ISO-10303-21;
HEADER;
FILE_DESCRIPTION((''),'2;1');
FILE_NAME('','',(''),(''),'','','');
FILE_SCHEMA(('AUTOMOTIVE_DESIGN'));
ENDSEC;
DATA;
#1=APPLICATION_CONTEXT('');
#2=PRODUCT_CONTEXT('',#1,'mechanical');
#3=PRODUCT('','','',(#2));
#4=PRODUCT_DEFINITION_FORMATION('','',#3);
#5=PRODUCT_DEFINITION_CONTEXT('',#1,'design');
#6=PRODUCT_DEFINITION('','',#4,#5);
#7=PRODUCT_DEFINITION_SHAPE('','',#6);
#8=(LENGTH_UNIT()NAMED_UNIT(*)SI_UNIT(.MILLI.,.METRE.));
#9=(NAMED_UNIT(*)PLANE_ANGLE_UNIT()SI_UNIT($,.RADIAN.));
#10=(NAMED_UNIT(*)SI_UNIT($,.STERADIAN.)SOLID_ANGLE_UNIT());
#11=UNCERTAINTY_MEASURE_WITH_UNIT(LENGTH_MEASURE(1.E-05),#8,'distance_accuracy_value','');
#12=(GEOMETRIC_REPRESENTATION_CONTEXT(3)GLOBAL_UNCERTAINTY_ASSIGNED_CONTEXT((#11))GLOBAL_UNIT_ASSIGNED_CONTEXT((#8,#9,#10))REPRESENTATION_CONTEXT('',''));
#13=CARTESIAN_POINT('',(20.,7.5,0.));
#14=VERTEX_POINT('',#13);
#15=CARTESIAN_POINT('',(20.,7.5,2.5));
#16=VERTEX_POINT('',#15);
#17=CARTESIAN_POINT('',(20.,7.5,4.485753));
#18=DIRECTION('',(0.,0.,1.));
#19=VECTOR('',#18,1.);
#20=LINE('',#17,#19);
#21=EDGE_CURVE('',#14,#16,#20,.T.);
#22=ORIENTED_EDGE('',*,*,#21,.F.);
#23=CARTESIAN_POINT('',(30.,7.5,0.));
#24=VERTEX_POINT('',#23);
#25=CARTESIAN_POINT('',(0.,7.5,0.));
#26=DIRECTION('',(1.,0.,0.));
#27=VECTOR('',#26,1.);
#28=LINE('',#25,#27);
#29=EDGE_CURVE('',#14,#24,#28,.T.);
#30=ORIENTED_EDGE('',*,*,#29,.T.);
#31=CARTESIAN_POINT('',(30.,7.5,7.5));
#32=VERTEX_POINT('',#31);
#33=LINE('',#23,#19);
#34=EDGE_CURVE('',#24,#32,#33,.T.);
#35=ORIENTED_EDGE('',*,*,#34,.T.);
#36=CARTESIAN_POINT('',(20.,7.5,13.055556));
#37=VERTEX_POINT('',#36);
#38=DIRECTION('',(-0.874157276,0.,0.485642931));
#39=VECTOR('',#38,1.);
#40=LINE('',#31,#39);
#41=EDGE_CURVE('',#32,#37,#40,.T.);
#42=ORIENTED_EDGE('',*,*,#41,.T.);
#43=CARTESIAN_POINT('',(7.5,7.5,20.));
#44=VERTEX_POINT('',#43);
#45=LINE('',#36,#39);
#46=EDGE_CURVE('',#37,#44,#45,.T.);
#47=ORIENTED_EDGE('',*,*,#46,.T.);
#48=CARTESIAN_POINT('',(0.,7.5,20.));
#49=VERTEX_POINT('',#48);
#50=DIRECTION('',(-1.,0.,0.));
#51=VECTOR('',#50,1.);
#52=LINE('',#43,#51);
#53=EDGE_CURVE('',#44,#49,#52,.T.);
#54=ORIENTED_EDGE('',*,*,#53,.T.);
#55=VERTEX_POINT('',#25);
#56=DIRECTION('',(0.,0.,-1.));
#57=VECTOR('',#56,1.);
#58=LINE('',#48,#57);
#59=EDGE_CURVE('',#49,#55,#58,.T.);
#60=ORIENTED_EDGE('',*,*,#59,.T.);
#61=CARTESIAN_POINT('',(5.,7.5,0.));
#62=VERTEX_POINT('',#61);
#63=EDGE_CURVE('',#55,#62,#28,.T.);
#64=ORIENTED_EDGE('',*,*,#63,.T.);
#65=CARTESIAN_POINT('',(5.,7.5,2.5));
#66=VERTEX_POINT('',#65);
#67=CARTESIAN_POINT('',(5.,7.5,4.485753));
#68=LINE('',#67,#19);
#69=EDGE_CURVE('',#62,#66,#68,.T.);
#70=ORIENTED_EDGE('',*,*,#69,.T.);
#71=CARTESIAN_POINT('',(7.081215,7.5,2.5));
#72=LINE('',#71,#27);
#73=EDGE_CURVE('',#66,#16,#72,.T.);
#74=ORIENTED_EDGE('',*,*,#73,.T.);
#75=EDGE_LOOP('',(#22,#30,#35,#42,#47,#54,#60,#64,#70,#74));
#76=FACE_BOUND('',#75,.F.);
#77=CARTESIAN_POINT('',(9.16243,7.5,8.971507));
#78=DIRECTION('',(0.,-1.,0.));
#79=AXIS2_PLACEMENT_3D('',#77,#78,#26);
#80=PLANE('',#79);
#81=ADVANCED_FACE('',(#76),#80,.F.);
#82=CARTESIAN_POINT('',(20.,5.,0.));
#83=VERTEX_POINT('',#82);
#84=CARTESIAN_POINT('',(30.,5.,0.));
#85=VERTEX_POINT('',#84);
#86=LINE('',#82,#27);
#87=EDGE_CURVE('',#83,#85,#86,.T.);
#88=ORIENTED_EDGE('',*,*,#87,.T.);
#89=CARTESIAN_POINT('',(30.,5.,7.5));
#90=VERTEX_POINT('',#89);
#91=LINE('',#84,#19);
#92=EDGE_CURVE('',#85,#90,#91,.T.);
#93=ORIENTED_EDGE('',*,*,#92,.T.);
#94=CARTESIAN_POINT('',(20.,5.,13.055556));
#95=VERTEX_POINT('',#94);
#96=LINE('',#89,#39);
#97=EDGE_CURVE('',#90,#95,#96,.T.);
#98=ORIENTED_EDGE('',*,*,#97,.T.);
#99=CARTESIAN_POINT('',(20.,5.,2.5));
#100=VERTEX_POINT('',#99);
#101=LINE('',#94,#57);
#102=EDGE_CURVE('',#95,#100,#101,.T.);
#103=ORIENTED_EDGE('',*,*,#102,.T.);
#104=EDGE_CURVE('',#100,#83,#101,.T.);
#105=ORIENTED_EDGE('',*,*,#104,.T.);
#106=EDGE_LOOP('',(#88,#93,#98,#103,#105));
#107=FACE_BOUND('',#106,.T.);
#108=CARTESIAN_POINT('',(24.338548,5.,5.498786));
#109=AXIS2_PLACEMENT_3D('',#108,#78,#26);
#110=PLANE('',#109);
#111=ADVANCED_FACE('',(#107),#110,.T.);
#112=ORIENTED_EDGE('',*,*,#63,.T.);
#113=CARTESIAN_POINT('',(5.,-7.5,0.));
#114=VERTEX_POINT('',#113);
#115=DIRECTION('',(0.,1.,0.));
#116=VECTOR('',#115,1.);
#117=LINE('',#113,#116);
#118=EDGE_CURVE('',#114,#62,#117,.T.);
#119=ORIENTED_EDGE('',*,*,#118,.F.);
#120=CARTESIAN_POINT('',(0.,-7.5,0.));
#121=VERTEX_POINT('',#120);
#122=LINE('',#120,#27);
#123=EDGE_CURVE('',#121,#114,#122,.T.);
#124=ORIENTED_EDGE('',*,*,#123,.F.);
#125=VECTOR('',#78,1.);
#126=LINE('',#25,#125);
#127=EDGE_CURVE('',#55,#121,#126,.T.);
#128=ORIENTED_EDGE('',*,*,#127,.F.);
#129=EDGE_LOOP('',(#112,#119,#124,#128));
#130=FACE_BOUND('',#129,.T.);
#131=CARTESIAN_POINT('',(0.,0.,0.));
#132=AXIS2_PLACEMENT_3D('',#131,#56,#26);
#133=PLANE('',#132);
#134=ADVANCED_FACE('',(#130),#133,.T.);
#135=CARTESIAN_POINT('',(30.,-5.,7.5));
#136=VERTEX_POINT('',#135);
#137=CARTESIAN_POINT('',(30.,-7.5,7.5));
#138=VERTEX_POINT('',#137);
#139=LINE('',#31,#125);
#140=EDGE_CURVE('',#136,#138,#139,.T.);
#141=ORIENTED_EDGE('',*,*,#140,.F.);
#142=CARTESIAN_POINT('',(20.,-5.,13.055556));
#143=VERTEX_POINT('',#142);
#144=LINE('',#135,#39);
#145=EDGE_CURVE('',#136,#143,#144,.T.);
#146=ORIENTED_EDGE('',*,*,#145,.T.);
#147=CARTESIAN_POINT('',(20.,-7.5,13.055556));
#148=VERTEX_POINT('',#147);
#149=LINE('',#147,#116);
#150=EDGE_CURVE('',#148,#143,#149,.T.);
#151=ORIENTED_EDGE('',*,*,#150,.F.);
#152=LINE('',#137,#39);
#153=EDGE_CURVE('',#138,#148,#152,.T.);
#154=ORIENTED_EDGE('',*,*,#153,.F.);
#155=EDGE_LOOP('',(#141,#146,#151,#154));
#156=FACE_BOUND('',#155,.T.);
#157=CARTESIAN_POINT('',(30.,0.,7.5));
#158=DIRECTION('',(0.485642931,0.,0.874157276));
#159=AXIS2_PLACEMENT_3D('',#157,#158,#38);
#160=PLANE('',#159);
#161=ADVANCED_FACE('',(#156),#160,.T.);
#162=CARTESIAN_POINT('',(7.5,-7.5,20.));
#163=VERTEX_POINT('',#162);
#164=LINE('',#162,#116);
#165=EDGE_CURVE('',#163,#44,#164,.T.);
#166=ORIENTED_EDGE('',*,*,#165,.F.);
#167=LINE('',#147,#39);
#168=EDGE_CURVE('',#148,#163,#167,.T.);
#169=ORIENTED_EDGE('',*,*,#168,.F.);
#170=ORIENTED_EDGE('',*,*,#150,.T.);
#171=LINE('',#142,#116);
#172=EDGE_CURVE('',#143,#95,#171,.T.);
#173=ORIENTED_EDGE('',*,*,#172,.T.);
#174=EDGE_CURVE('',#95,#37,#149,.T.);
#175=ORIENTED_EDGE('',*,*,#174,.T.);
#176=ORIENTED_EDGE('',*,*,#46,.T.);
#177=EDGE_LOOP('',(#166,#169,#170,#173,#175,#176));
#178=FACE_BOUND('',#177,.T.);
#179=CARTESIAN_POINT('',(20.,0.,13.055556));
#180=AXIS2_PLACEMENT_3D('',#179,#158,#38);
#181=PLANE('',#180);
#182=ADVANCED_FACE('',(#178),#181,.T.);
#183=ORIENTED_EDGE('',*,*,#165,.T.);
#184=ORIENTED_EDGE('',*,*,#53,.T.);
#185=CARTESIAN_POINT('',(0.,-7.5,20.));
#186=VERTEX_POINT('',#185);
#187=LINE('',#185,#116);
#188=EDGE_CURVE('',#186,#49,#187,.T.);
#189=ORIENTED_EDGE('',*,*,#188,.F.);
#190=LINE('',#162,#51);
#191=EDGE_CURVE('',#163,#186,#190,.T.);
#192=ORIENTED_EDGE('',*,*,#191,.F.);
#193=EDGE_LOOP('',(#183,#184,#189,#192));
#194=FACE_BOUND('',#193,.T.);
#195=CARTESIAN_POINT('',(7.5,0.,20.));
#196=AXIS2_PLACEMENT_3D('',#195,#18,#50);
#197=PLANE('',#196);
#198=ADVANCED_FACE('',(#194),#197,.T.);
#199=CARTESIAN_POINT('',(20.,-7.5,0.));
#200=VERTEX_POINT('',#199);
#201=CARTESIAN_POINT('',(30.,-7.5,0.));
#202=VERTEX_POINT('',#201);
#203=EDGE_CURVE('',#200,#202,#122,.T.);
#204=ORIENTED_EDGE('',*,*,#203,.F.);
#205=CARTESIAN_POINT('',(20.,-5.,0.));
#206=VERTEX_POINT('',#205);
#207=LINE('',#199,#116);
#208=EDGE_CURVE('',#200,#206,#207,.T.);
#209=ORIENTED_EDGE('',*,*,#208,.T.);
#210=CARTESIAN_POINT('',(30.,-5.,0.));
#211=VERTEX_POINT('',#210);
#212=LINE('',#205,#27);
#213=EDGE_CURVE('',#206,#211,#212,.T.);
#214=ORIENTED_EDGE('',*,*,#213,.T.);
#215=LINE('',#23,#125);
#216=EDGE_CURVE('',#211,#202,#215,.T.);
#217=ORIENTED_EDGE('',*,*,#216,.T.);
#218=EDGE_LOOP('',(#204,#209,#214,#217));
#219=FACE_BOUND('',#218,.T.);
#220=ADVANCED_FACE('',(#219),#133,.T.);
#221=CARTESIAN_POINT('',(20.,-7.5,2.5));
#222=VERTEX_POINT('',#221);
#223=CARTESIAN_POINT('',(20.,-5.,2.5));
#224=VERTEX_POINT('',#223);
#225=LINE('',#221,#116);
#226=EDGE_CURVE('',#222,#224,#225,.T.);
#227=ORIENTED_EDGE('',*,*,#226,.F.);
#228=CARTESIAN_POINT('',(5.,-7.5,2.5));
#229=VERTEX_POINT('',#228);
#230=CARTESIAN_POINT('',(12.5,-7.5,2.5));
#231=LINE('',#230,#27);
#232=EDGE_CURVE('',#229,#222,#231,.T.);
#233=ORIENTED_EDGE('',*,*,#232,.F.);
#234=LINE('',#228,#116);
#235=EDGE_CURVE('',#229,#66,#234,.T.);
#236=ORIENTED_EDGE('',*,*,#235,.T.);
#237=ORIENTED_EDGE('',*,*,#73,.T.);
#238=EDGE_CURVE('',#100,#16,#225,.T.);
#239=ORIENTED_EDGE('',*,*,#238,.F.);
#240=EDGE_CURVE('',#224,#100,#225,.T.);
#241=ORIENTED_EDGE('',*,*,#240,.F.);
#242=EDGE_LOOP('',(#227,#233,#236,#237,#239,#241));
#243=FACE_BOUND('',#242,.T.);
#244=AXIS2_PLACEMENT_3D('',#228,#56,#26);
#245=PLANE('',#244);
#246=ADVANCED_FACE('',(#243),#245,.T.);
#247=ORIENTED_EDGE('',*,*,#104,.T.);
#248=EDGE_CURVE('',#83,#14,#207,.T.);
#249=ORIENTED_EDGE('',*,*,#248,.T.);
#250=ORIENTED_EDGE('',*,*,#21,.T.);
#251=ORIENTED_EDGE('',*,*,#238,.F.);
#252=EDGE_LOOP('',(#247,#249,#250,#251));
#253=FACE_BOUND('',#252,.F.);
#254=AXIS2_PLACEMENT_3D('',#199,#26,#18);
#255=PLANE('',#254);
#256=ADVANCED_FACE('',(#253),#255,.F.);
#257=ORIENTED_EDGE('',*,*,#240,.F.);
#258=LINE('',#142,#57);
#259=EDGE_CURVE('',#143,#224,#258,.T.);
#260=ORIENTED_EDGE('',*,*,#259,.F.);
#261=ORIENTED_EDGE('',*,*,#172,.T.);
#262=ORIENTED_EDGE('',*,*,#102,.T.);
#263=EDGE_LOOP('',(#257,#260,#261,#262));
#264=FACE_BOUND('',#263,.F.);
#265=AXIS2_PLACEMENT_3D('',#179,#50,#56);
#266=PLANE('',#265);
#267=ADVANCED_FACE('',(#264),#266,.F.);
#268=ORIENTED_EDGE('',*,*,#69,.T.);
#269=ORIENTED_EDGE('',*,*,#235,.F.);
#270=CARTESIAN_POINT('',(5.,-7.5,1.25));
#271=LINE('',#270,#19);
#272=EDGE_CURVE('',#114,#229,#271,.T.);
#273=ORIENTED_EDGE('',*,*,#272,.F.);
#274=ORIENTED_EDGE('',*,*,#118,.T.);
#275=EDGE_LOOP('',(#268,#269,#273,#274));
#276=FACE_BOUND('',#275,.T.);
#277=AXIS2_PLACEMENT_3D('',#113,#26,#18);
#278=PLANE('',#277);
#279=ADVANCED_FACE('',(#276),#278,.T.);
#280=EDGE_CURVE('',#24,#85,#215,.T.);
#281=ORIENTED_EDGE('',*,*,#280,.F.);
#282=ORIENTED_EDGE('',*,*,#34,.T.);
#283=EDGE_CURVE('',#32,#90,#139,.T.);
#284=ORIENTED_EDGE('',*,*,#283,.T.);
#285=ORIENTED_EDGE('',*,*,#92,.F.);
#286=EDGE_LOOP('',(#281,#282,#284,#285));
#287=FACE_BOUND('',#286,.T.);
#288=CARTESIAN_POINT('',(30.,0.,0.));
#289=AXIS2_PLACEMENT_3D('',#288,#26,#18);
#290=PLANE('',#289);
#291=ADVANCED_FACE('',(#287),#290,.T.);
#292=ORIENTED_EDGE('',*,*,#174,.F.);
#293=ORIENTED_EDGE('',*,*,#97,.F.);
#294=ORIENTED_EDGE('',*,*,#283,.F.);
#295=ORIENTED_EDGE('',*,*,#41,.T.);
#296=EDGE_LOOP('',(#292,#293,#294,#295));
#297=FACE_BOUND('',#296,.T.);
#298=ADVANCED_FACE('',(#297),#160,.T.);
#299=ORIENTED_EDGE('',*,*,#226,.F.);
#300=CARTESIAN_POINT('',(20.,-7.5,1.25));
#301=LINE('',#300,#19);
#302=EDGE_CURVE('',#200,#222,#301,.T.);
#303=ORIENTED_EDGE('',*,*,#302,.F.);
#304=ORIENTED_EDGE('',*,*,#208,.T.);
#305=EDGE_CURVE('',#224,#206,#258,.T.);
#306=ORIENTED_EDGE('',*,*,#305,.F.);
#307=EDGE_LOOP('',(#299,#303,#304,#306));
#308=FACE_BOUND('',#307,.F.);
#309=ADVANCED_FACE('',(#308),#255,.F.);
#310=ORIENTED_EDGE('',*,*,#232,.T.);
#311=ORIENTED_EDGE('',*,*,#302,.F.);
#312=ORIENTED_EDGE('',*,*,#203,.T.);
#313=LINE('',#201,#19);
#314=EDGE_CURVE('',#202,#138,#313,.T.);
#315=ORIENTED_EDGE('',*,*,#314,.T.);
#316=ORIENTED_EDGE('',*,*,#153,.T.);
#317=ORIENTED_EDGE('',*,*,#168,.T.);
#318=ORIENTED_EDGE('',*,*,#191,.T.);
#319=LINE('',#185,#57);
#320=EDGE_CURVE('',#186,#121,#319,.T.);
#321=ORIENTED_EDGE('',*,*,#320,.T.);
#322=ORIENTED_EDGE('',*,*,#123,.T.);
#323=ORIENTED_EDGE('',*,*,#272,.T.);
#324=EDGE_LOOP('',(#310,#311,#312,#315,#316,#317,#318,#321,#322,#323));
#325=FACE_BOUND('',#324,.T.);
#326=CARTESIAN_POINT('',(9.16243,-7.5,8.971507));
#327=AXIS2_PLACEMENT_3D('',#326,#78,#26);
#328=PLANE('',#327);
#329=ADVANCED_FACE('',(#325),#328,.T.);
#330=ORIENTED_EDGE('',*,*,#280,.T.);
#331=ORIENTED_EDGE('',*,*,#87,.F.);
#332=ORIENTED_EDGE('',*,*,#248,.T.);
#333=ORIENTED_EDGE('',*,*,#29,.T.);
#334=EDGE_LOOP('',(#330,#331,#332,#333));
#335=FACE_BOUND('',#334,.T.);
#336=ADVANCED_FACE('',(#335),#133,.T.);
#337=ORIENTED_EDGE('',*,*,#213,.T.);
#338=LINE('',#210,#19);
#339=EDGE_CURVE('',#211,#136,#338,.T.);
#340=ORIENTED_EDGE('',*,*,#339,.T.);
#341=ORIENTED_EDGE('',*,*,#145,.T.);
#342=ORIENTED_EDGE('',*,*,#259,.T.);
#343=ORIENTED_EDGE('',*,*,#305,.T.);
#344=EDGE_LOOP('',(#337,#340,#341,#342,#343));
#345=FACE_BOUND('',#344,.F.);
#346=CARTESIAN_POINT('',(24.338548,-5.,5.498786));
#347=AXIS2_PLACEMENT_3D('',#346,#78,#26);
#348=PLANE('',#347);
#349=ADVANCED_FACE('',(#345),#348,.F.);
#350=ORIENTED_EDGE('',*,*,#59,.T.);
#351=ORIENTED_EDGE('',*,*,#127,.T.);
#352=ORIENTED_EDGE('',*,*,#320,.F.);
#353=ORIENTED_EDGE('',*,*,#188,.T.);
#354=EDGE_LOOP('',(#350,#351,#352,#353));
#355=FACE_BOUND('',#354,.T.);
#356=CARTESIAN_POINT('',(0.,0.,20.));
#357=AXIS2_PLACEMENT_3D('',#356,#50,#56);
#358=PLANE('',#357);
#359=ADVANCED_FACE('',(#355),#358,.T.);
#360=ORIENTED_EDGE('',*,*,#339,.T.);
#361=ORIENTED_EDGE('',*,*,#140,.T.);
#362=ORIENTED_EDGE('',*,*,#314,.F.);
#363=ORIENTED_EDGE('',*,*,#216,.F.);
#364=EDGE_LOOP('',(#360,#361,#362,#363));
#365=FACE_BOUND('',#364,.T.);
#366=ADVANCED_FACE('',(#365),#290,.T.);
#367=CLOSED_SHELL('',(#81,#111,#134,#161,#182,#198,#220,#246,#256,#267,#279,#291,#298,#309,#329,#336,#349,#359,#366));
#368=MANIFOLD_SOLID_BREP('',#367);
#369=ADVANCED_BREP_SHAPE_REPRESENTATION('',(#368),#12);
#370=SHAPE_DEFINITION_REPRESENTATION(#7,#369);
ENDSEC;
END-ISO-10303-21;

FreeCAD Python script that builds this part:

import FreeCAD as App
import Part
import Sketcher

V = App.Vector

doc = App.newDocument("Part")
body = doc.addObject("PartDesign::Body", "Body")

# Sketch on XZ plane
sketch1 = body.newObject("Sketcher::SketchObject", "Sketch")
sketch1.AttachmentSupport = (doc.getObject("XZ_Plane"), [""])
sketch1.MapMode = "FlatFace"
sketch1.addGeometry([
    Part.LineSegment(V(0, 20, 0), V(0, 0, 0)),  # 0
    Part.LineSegment(V(0, 0, 0), V(30, 0, 0)),  # 1
    Part.LineSegment(V(30, 0, 0), V(30, 8, 0)),  # 2
    Part.LineSegment(V(30, 8, 0), V(20, 13, 0)),  # 3
    Part.LineSegment(V(20, 13, 0), V(8, 20, 0)),  # 4
    Part.LineSegment(V(8, 20, 0), V(0, 20, 0)),  # 5
], False)
sketch1.addConstraint([
    Sketcher.Constraint("Coincident", 0, 2, 1, 1),
    Sketcher.Constraint("Coincident", 1, 2, 2, 1),
    Sketcher.Constraint("Coincident", 2, 2, 3, 1),
    Sketcher.Constraint("Coincident", 3, 2, 4, 1),
    Sketcher.Constraint("Coincident", 4, 2, 5, 1),
    Sketcher.Constraint("Coincident", 5, 2, 0, 1),
    Sketcher.Constraint("Vertical", 0),
    Sketcher.Constraint("Horizontal", 1),
    Sketcher.Constraint("Vertical", 2),
    Sketcher.Constraint("Horizontal", 5),
    Sketcher.Constraint("Coincident", 0, 2, -1, 1),
    Sketcher.Constraint("Parallel", 3, 4),
    Sketcher.Constraint("Equal", 5, 2),
    Sketcher.Constraint("DistanceX", 1, 1, 1, 2, 30.0),
    Sketcher.Constraint("DistanceY", 0, 2, 0, 1, 20.0),
    Sketcher.Constraint("DistanceX", 5, 2, 5, 1, 7.5),
    Sketcher.Constraint("DistanceX", -1, 1, 3, 2, 20.0),
])
pad1 = body.newObject("PartDesign::Pad", "Pad")
pad1.Profile = sketch1
pad1.Length = 15
pad1.Midplane = True

# Sketch on XZ plane
sketch2 = body.newObject("Sketcher::SketchObject", "Sketch001")
sketch2.AttachmentSupport = (doc.getObject("XZ_Plane"), [""])
sketch2.MapMode = "FlatFace"
sketch2.AttachmentOffset = App.Placement(V(0, 0, 7.5), App.Rotation())
sketch2.addGeometry([
    Part.LineSegment(V(5, 2.5, 0), V(5, 0, 0)),
    Part.LineSegment(V(5, 0, 0), V(20, 0, 0)),
    Part.LineSegment(V(20, 0, 0), V(20, 2.5, 0)),
    Part.LineSegment(V(20, 2.5, 0), V(5, 2.5, 0)),
], False)
sketch2.addConstraint([
    Sketcher.Constraint("Coincident", 0, 2, 1, 1),
    Sketcher.Constraint("Coincident", 1, 2, 2, 1),
    Sketcher.Constraint("Coincident", 2, 2, 3, 1),
    Sketcher.Constraint("Coincident", 3, 2, 0, 1),
    Sketcher.Constraint("Vertical", 0),
    Sketcher.Constraint("Horizontal", 1),
    Sketcher.Constraint("Vertical", 2),
    Sketcher.Constraint("Horizontal", 3),
    Sketcher.Constraint("PointOnObject", 0, 2, -1),
    Sketcher.Constraint("DistanceX", 1, 1, 1, 2, 15.0),
    Sketcher.Constraint("DistanceY", 0, 2, 0, 1, 2.5),
    Sketcher.Constraint("DistanceX", -1, 1, 0, 2, 5.0),
])
pocket1 = body.newObject("PartDesign::Pocket", "Pocket")
pocket1.Profile = sketch2
pocket1.Type = "ThroughAll"

# Sketch on XZ plane
sketch3 = body.newObject("Sketcher::SketchObject", "Sketch002")
sketch3.AttachmentSupport = (doc.getObject("XZ_Plane"), [""])
sketch3.MapMode = "FlatFace"
sketch3.addGeometry([
    Part.LineSegment(V(20, 13, 0), V(20, 0, 0)),
    Part.LineSegment(V(20, 0, 0), V(30, 0, 0)),
    Part.LineSegment(V(30, 0, 0), V(30, 8, 0)),
    Part.LineSegment(V(30, 8, 0), V(20, 13, 0)),
], False)
sketch3.addConstraint([
    Sketcher.Constraint("Coincident", 0, 2, 1, 1),
    Sketcher.Constraint("Coincident", 1, 2, 2, 1),
    Sketcher.Constraint("Coincident", 2, 2, 3, 1),
    Sketcher.Constraint("Coincident", 3, 2, 0, 1),
    Sketcher.Constraint("Vertical", 0),
    Sketcher.Constraint("Horizontal", 1),
    Sketcher.Constraint("Vertical", 2),
    Sketcher.Constraint("PointOnObject", 0, 2, -1),
    Sketcher.Constraint("DistanceX", 1, 1, 1, 2, 10.0),
    Sketcher.Constraint("DistanceY", 2, 1, 2, 2, 7.5),
    Sketcher.Constraint("DistanceX", -1, 1, 0, 2, 20.0),
    Sketcher.Constraint("Distance", 3, 11.439589),
])
pocket2 = body.newObject("PartDesign::Pocket", "Pocket001")
pocket2.Profile = sketch3
pocket2.Length = 10
pocket2.Midplane = True

doc.recompute()
